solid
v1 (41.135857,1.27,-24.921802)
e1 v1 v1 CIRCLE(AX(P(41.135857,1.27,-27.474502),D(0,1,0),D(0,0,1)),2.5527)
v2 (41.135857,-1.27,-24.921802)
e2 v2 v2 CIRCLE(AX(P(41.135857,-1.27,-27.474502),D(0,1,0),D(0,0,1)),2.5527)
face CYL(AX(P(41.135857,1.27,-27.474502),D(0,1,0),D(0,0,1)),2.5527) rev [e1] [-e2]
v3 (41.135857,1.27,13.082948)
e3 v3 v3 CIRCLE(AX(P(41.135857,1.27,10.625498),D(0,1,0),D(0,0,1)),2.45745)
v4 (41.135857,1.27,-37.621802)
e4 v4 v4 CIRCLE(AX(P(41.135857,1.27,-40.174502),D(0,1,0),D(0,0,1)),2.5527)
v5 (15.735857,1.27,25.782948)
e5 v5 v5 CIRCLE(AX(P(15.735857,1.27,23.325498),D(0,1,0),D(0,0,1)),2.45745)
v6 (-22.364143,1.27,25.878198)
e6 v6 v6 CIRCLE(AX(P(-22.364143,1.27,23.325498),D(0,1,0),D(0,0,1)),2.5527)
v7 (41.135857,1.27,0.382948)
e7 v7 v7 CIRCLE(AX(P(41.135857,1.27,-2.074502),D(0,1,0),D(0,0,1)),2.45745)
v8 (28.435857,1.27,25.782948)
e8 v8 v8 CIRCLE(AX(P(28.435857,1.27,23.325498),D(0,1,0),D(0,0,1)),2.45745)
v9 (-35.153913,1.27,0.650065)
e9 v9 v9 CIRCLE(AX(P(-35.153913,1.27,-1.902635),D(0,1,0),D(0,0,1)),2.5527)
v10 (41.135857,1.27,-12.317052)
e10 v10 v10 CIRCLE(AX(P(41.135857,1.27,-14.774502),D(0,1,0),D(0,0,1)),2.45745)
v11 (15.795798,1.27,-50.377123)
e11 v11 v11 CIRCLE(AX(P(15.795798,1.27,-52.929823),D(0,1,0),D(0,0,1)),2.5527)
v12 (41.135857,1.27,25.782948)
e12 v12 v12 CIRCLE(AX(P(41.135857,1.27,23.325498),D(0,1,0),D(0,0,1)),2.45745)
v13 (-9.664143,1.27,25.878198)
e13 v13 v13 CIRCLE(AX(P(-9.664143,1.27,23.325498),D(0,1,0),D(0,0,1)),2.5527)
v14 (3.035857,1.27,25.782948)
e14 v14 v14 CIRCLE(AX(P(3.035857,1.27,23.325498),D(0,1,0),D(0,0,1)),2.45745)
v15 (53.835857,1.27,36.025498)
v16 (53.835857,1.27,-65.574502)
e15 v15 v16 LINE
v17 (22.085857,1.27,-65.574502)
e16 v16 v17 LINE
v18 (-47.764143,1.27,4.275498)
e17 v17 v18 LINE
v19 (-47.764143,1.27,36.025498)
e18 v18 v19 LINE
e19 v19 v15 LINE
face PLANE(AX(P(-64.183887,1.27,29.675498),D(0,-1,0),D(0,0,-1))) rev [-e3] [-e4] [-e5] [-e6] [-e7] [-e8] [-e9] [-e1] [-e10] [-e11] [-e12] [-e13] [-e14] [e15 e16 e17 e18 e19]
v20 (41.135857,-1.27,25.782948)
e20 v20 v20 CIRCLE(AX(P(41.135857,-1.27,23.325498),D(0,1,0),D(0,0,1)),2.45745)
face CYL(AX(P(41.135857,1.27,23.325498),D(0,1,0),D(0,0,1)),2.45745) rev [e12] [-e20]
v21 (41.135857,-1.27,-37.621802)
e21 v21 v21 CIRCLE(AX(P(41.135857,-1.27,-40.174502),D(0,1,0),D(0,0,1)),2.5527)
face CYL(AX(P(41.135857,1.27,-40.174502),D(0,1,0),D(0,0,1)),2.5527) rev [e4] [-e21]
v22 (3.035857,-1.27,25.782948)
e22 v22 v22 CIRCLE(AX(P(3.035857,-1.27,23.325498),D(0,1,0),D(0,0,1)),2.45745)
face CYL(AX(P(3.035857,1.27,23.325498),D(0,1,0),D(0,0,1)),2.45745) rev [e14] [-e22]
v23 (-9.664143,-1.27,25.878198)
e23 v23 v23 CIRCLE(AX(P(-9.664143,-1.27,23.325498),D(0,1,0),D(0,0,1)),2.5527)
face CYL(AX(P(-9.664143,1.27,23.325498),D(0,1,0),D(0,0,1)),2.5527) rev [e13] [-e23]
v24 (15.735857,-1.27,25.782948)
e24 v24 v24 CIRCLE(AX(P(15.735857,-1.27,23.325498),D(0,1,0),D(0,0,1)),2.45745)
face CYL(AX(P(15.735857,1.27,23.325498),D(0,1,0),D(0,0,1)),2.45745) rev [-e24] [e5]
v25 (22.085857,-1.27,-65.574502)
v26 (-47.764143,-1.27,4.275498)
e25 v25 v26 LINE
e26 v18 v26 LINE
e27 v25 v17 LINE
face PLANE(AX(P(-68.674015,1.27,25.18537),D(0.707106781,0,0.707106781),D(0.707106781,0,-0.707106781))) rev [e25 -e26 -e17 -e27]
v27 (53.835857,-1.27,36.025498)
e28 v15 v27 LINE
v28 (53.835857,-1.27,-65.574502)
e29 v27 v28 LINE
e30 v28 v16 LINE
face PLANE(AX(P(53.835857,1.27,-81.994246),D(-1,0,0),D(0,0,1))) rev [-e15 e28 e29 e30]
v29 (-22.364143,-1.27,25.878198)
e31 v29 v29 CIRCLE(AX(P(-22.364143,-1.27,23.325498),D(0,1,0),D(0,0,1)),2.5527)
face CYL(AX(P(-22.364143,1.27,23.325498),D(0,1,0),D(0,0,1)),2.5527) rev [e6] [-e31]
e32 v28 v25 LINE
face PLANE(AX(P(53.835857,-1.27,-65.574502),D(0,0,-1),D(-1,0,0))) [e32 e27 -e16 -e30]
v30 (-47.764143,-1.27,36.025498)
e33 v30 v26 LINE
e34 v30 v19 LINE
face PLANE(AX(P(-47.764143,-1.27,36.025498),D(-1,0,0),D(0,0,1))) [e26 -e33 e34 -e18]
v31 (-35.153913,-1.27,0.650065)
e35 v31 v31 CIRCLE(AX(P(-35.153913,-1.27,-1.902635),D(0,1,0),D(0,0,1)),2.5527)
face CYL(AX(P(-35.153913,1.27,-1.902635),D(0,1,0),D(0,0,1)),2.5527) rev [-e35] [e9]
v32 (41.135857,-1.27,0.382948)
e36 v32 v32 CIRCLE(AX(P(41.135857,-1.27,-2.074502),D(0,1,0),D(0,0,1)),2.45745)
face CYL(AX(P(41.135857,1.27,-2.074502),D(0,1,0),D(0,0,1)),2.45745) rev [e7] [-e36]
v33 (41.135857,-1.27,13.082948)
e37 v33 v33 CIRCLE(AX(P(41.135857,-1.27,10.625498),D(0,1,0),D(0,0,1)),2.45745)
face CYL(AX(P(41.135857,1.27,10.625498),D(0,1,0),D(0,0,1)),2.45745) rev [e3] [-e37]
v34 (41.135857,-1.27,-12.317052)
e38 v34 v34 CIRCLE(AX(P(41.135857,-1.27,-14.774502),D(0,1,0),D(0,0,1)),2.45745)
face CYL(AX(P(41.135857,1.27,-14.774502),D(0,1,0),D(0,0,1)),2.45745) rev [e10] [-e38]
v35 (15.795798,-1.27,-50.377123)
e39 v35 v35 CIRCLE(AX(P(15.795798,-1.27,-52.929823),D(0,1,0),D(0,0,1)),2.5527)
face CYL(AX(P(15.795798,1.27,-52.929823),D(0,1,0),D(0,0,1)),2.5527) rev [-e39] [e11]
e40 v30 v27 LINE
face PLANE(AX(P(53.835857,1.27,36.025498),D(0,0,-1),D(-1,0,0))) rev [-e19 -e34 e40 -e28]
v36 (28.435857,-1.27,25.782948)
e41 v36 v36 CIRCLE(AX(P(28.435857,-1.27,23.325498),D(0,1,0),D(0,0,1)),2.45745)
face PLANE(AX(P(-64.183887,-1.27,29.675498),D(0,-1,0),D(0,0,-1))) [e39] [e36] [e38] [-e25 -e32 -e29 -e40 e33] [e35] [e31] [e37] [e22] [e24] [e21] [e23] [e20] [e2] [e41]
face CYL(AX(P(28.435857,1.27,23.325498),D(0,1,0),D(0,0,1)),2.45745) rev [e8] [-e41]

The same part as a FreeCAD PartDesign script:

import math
import FreeCAD as App
import Part
import Sketcher
from FreeCAD import Vector
Q = App.Units.Quantity

doc = App.newDocument("Part")
params = doc.addObject("Spreadsheet::Sheet", "Params")
for row, (alias, value) in enumerate([
    ("sketch1_radius", "0.25 in"),
    ("pad1_length", "0.1 in"),
    ("hole_diameter", "0.1935 in"),
    ("sketch3_diameter", "0.201 in"),
    ("hole2_diameter", "0.201 in"),
    ("sketch4_width", "4 in"),
], start=1):
    params.set(f"A{row}", alias)
    params.set(f"B{row}", "=" + value)
    params.setAlias(f"B{row}", alias)

body = doc.addObject("PartDesign::Body", "Body")

# Sketch on XZ plane
sketch1 = doc.addObject("Sketcher::SketchObject", "Sketch")
body.addObject(sketch1)
sketch1.AttachmentSupport = (doc.XZ_Plane, [""])
sketch1.MapMode = "FlatFace"
sketch1.addGeometry([
    Part.LineSegment(Vector(53.835857, 36.025498, 0), Vector(53.835857, -81.994246, 0)),  # 0
    Part.ArcOfCircle(Part.Circle(Vector(47.485857, -81.994246, 0), Vector(0, 0, 1), 6.35), math.radians(-135), math.radians(0)),  # 1
    Part.LineSegment(Vector(42.995729, -86.484374, 0), Vector(-68.674015, 25.18537, 0)),  # 2
    Part.ArcOfCircle(Part.Circle(Vector(-64.183887, 29.675498, 0), Vector(0, 0, 1), 6.35), math.radians(90), math.radians(225)),  # 3
    Part.LineSegment(Vector(-64.183887, 36.025498, 0), Vector(53.835857, 36.025498, 0)),  # 4
], False)
sketch1.addConstraint([
    Sketcher.Constraint("Tangent", 0, 2, 1, 2),
    Sketcher.Constraint("Tangent", 1, 1, 2, 1),
    Sketcher.Constraint("Tangent", 2, 2, 3, 2),
    Sketcher.Constraint("Tangent", 3, 1, 4, 1),
    Sketcher.Constraint("Coincident", 4, 2, 0, 1),
    Sketcher.Constraint("Vertical", 0),
    Sketcher.Constraint("Horizontal", 4),
    Sketcher.Constraint("Equal", 1, 3),
    Sketcher.Constraint("Equal", 4, 0),
    Sketcher.Constraint("Radius", 1, Q("0.25 in")),
    Sketcher.Constraint("DistanceY", -1, 1, 3, 3, Q("29.675498 mm")),
    Sketcher.Constraint("DistanceX", 4, 1, 4, 2, Q("118.019744 mm")),
    Sketcher.Constraint("DistanceX", -1, 1, 1, 1, Q("42.995729 mm")),
])
sketch1.setExpression("Constraints[9]", "Params.sketch1_radius")
pad1 = doc.addObject("PartDesign::Pad", "Pad")
body.addObject(pad1)
pad1.Profile = sketch1
pad1.setExpression("Length", "Params.pad1_length")
pad1.Midplane = True

# Sketch on XZ plane
sketch2 = doc.addObject("Sketcher::SketchObject", "Sketch001")
body.addObject(sketch2)
sketch2.AttachmentSupport = (doc.XZ_Plane, [""])
sketch2.MapMode = "FlatFace"
sketch2.AttachmentOffset = App.Placement(Vector(0, 0, -0.05 * 25.4), App.Rotation())
sketch2.addGeometry([
    Part.Circle(Vector(41.135857, 23.325498, 0), Vector(0, 0, 1), 2.45745),  # 0
    Part.Circle(Vector(28.435857, 23.325498, 0), Vector(0, 0, 1), 2.45745),  # 1
    Part.Circle(Vector(15.735857, 23.325498, 0), Vector(0, 0, 1), 2.45745),  # 2
    Part.Circle(Vector(3.035857, 23.325498, 0), Vector(0, 0, 1), 2.45745),  # 3
    Part.Circle(Vector(41.135857, 10.625498, 0), Vector(0, 0, 1), 2.45745),  # 4
    Part.Circle(Vector(41.135857, -2.074502, 0), Vector(0, 0, 1), 2.45745),  # 5
    Part.Circle(Vector(41.135857, -14.774502, 0), Vector(0, 0, 1), 2.45745),  # 6
], False)
sketch2.addConstraint([
    Sketcher.Constraint("Equal", 0, 1),
    Sketcher.Constraint("Equal", 1, 2),
    Sketcher.Constraint("Equal", 2, 3),
    Sketcher.Constraint("Equal", 3, 4),
    Sketcher.Constraint("Equal", 4, 5),
    Sketcher.Constraint("Equal", 5, 6),
    Sketcher.Constraint("Horizontal", 0, 3, 1, 3),
    Sketcher.Constraint("Horizontal", 1, 3, 2, 3),
    Sketcher.Constraint("Horizontal", 2, 3, 3, 3),
    Sketcher.Constraint("Vertical", 0, 3, 4, 3),
    Sketcher.Constraint("Vertical", 4, 3, 5, 3),
    Sketcher.Constraint("Vertical", 5, 3, 6, 3),
    Sketcher.Constraint("DistanceX", 2, 3, 0, 3, Q("1 in")),
    Sketcher.Constraint("DistanceX", 3, 3, 1, 3, Q("1 in")),
    Sketcher.Constraint("DistanceY", 5, 3, 0, 3, Q("1 in")),
    Sketcher.Constraint("DistanceY", 6, 3, 4, 3, Q("1 in")),
    Sketcher.Constraint("Diameter", 0, Q("0.1935 in")),
    Sketcher.Constraint("DistanceX", 1, 3, 0, 3, Q("0.5 in")),
    Sketcher.Constraint("DistanceY", 4, 3, 0, 3, Q("0.5 in")),
    Sketcher.Constraint("DistanceY", -1, 1, 0, 3, Q("23.325498 mm")),
    Sketcher.Constraint("DistanceX", -1, 1, 0, 3, Q("41.135857 mm")),
])
doc.recompute()
hole = doc.addObject("PartDesign::Hole", "Hole")
body.addObject(hole)
hole.Profile = sketch2
hole.ThreadType = "None"
hole.setExpression("Diameter", "Params.hole_diameter")
hole.DepthType = "ThroughAll"
hole.Reversed = True

# Sketch on XZ plane
sketch3 = doc.addObject("Sketcher::SketchObject", "Sketch002")
body.addObject(sketch3)
sketch3.AttachmentSupport = (doc.XZ_Plane, [""])
sketch3.MapMode = "FlatFace"
sketch3.AttachmentOffset = App.Placement(Vector(0, 0, -0.05 * 25.4), App.Rotation())
sketch3.addGeometry([
    Part.Circle(Vector(-9.664143, 23.325498, 0), Vector(0, 0, 1), 2.5527),  # 0
    Part.Circle(Vector(-22.364143, 23.325498, 0), Vector(0, 0, 1), 2.5527),  # 1
    Part.Circle(Vector(41.135857, -27.474502, 0), Vector(0, 0, 1), 2.5527),  # 2
    Part.Circle(Vector(41.135857, -40.174502, 0), Vector(0, 0, 1), 2.5527),  # 3
    Part.Circle(Vector(15.795798, -52.929823, 0), Vector(0, 0, 1), 2.5527),  # 4
    Part.Circle(Vector(-35.153913, -1.902635, 0), Vector(0, 0, 1), 2.5527),  # 5
], False)
sketch3.addConstraint([
    Sketcher.Constraint("Equal", 0, 1),
    Sketcher.Constraint("Equal", 1, 2),
    Sketcher.Constraint("Equal", 2, 3),
    Sketcher.Constraint("Equal", 3, 4),
    Sketcher.Constraint("Equal", 4, 5),
    Sketcher.Constraint("Horizontal", 0, 3, 1, 3),
    Sketcher.Constraint("Vertical", 2, 3, 3, 3),
    Sketcher.Constraint("Diameter", 0, Q("0.201 in")),
    Sketcher.Constraint("DistanceX", 0, 3, 2, 3, Q("2 in")),
    Sketcher.Constraint("DistanceY", 2, 3, 0, 3, Q("2 in")),
    Sketcher.Constraint("DistanceX", 1, 3, 0, 3, Q("0.5 in")),
    Sketcher.Constraint("DistanceY", 3, 3, 2, 3, Q("0.5 in")),
    Sketcher.Constraint("DistanceY", -1, 1, 0, 3, Q("23.325498 mm")),
    Sketcher.Constraint("DistanceX", -1, 1, 4, 3, Q("15.795798 mm")),
    Sketcher.Constraint("DistanceX", 4, 3, 3, 3, Q("25.340058 mm")),
    Sketcher.Constraint("DistanceY", 4, 3, 3, 3, Q("12.755321 mm")),
    Sketcher.Constraint("DistanceX", 5, 3, 1, 3, Q("12.78977 mm")),
    Sketcher.Constraint("DistanceY", 5, 3, -1, 1, Q("1.902635 mm")),
])
sketch3.setExpression("Constraints[7]", "Params.sketch3_diameter")
doc.recompute()
hole2 = doc.addObject("PartDesign::Hole", "Hole001")
body.addObject(hole2)
hole2.Profile = sketch3
hole2.ThreadType = "None"
hole2.setExpression("Diameter", "Params.hole2_diameter")
hole2.DepthType = "ThroughAll"
hole2.Reversed = True

# Sketch on XZ plane
sketch4 = doc.addObject("Sketcher::SketchObject", "Sketch003")
body.addObject(sketch4)
sketch4.AttachmentSupport = (doc.XZ_Plane, [""])
sketch4.MapMode = "FlatFace"
sketch4.AttachmentOffset = App.Placement(Vector(0, 0, -0.05 * 25.4), App.Rotation())
sketch4.addGeometry([
    Part.LineSegment(Vector(-77.087113, -91.739619, 0), Vector(-77.087113, 51.01966, 0)),  # 0
    Part.LineSegment(Vector(-77.087113, 51.01966, 0), Vector(105.185895, 51.01966, 0)),  # 1
    Part.LineSegment(Vector(105.185895, 51.01966, 0), Vector(105.185895, -91.739619, 0)),  # 2
    Part.LineSegment(Vector(105.185895, -91.739619, 0), Vector(-77.087113, -91.739619, 0)),  # 3
    Part.LineSegment(Vector(53.835857, 36.025498, 0), Vector(-47.764143, 36.025498, 0)),  # 4
    Part.LineSegment(Vector(-47.764143, 36.025498, 0), Vector(-47.764143, -65.574502, 0)),  # 5
    Part.LineSegment(Vector(-47.764143, -65.574502, 0), Vector(53.835857, -65.574502, 0)),  # 6
    Part.LineSegment(Vector(53.835857, -65.574502, 0), Vector(53.835857, 36.025498, 0)),  # 7
], False)
sketch4.addConstraint([
    Sketcher.Constraint("Coincident", 0, 2, 1, 1),
    Sketcher.Constraint("Coincident", 1, 2, 2, 1),
    Sketcher.Constraint("Coincident", 2, 2, 3, 1),
    Sketcher.Constraint("Coincident", 3, 2, 0, 1),
    Sketcher.Constraint("Coincident", 4, 2, 5, 1),
    Sketcher.Constraint("Coincident", 5, 2, 6, 1),
    Sketcher.Constraint("Coincident", 6, 2, 7, 1),
    Sketcher.Constraint("Coincident", 7, 2, 4, 1),
    Sketcher.Constraint("Vertical", 0),
    Sketcher.Constraint("Horizontal", 1),
    Sketcher.Constraint("Vertical", 2),
    Sketcher.Constraint("Horizontal", 3),
    Sketcher.Constraint("Horizontal", 4),
    Sketcher.Constraint("Vertical", 5),
    Sketcher.Constraint("Horizontal", 6),
    Sketcher.Constraint("Vertical", 7),
    Sketcher.Constraint("Equal", 6, 5),
    Sketcher.Constraint("DistanceX", 4, 2, 4, 1, Q("4 in")),
    Sketcher.Constraint("DistanceY", 0, 1, 0, 2, Q("142.759279 mm")),
    Sketcher.Constraint("DistanceY", -1, 1, 4, 2, Q("36.025498 mm")),
    Sketcher.Constraint("DistanceX", 1, 1, 1, 2, Q("182.273008 mm")),
    Sketcher.Constraint("DistanceY", -1, 1, 0, 2, Q("51.01966 mm")),
    Sketcher.Constraint("DistanceX", 0, 2, 4, 2, Q("29.32297 mm")),
    Sketcher.Constraint("DistanceX", 0, 2, -1, 1, Q("77.087113 mm")),
])
sketch4.setExpression("Constraints[17]", "Params.sketch4_width")
pocket1 = doc.addObject("PartDesign::Pocket", "Pocket")
body.addObject(pocket1)
pocket1.Profile = sketch4
pocket1.Type = "ThroughAll"
pocket1.Reversed = True

doc.recompute()
